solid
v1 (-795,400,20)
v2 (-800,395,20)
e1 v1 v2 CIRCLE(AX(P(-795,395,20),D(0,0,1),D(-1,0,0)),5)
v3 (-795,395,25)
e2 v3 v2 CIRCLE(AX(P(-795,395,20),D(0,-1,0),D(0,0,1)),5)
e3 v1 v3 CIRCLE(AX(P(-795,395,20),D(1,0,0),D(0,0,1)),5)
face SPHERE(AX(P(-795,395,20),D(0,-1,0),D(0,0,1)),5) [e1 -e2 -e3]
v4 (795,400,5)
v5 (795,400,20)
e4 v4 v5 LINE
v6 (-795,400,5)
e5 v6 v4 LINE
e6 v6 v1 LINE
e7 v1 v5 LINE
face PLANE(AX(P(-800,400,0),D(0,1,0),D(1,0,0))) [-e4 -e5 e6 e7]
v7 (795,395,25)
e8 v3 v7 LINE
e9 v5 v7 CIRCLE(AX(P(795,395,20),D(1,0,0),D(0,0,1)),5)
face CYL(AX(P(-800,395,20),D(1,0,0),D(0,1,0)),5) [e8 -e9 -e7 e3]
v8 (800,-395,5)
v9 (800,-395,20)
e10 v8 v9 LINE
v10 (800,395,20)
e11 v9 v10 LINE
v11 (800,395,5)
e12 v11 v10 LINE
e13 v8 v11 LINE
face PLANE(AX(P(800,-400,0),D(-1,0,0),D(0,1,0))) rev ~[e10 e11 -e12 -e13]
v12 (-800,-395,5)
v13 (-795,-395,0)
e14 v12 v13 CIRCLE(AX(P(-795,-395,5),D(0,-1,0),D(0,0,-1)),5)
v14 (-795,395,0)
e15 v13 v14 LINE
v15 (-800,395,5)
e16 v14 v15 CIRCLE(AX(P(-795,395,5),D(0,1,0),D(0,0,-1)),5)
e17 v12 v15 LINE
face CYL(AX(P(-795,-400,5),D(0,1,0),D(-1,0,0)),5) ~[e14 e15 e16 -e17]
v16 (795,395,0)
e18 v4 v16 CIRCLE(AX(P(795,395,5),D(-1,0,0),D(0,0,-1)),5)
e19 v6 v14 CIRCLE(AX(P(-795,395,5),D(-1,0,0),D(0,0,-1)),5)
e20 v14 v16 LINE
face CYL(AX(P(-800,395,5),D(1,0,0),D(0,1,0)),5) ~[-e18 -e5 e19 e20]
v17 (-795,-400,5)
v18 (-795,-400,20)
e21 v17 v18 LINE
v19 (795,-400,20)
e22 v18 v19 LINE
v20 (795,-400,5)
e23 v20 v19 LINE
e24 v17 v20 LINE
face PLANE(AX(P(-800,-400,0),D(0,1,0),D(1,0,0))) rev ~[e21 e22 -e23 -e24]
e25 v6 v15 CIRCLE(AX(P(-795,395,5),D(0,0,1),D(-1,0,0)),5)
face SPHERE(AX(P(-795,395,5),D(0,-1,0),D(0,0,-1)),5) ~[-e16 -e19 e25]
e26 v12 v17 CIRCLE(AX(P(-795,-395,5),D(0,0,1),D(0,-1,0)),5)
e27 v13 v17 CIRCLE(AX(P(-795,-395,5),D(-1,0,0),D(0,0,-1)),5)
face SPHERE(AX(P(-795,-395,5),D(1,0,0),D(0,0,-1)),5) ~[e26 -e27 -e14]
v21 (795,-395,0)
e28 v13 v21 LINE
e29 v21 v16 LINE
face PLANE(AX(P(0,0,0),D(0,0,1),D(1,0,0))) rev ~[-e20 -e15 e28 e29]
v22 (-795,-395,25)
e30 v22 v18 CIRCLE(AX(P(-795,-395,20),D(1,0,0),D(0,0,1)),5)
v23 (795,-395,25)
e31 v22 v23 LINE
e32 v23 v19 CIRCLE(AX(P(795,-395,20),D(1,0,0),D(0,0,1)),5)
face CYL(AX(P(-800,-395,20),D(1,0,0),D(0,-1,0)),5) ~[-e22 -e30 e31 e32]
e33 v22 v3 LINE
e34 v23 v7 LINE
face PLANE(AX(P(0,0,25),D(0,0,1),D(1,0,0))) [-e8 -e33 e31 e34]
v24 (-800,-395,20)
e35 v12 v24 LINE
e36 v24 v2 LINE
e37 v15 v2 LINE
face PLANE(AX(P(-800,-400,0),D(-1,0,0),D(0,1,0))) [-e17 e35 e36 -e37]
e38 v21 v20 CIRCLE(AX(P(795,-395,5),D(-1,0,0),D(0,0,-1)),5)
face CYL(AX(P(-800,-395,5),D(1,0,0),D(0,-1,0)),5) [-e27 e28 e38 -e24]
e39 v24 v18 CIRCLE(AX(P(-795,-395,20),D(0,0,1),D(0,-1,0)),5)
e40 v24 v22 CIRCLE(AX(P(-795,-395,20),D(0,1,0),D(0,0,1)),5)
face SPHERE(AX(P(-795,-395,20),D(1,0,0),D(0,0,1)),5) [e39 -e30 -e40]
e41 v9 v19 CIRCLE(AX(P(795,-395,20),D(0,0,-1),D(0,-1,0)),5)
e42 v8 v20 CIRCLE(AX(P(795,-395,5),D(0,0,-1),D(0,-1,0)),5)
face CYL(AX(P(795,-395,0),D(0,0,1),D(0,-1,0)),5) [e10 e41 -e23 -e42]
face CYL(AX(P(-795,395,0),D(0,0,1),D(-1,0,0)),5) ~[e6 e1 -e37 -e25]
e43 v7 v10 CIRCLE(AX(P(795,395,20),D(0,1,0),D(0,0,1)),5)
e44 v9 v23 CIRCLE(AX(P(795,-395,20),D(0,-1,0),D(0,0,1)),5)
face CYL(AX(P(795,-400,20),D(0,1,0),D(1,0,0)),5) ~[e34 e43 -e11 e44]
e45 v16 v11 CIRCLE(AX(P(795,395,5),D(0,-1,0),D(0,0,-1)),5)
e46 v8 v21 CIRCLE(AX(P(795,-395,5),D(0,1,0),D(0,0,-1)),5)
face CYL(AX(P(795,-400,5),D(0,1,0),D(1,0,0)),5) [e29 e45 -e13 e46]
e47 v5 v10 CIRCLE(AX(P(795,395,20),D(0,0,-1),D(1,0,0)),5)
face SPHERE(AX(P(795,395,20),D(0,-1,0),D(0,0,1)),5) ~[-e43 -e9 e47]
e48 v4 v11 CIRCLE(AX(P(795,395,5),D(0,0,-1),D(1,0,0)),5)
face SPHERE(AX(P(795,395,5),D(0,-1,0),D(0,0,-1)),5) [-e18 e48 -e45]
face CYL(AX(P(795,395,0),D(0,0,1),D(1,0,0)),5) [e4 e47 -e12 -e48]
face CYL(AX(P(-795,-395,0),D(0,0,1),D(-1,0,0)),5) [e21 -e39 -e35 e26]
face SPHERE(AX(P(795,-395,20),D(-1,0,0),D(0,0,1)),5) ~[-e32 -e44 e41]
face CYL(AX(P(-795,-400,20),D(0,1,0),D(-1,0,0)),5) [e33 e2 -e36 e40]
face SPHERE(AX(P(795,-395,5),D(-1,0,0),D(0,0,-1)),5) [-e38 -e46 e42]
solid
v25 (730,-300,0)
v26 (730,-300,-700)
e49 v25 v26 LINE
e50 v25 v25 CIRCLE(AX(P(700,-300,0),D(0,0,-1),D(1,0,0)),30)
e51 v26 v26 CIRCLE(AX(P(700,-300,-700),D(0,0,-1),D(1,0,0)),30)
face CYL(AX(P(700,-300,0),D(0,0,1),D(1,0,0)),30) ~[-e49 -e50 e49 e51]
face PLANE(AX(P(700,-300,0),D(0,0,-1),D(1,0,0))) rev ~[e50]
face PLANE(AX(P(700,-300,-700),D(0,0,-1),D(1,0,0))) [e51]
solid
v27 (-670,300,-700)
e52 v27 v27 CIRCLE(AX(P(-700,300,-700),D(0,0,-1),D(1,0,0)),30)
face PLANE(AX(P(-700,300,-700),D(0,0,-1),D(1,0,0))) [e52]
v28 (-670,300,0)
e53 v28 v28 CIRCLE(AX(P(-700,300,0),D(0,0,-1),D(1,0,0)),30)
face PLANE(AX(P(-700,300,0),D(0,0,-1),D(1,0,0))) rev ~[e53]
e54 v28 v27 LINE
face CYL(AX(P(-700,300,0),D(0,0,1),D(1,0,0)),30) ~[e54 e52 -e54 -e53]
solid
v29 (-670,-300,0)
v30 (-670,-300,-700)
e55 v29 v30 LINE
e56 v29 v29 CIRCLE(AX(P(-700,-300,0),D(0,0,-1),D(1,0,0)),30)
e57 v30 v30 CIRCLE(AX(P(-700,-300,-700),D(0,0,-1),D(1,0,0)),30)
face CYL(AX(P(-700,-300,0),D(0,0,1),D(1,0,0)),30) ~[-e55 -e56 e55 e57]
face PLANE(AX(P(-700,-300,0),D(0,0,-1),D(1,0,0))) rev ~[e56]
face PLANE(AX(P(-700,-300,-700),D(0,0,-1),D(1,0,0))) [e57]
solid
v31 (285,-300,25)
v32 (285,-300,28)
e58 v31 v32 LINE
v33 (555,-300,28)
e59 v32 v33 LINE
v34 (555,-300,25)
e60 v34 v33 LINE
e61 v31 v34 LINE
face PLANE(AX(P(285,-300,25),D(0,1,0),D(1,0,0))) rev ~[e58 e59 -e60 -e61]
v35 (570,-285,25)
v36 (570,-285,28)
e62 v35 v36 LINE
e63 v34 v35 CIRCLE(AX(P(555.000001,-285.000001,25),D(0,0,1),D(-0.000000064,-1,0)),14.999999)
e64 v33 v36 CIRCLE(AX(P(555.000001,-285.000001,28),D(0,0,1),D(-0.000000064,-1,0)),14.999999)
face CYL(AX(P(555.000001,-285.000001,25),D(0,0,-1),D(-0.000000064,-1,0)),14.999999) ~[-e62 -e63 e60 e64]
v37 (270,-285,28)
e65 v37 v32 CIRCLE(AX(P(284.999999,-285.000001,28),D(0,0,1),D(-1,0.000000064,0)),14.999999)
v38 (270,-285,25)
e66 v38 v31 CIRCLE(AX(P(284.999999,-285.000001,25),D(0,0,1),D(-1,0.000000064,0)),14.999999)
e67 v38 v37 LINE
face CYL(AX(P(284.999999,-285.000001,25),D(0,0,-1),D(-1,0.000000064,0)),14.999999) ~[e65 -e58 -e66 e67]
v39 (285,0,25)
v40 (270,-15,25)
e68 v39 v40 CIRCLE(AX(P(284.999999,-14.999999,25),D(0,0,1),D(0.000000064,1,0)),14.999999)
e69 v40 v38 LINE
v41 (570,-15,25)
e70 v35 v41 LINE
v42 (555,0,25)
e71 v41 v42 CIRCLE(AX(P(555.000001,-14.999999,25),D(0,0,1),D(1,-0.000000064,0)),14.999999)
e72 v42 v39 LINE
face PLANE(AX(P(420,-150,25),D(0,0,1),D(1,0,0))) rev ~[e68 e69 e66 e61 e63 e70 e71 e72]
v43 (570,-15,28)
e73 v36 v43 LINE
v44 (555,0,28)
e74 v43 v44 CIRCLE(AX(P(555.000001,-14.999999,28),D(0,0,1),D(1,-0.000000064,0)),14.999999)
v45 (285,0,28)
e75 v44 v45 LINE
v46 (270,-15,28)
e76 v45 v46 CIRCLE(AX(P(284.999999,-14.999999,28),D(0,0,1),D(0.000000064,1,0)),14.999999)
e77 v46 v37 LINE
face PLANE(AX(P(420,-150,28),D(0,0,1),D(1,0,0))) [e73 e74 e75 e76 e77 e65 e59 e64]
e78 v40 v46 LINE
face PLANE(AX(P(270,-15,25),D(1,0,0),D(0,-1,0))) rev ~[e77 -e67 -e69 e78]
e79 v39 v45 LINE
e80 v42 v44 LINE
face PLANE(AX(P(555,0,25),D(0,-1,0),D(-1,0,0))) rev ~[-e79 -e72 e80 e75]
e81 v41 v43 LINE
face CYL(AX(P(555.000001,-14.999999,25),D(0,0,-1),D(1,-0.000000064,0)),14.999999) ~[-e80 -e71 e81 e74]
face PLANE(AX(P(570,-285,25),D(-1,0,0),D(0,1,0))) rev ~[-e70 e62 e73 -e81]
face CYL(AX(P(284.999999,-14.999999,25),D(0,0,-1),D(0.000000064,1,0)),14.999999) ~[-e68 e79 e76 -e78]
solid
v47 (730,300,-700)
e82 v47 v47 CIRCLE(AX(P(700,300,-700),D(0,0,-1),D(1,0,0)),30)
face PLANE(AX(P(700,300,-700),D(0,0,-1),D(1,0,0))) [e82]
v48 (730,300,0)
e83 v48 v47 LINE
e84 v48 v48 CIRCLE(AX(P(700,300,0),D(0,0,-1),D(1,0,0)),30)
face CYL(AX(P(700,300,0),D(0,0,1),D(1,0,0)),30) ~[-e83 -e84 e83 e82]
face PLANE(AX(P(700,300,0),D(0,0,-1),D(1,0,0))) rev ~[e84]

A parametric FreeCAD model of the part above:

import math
import FreeCAD as App
import Part
import Sketcher
from FreeCAD import Vector


def add_polygon(sketch, points):
    """Adds a closed chain of lines whose ends are joined by coincident constraints."""
    first, n = sketch.GeometryCount, len(points)
    for a, b in zip(points, points[1:] + points[:1]):
        sketch.addGeometry(Part.LineSegment(App.Vector(*a, 0), App.Vector(*b, 0)), False)
    for i in range(n):
        sketch.addConstraint(Sketcher.Constraint("Coincident", first + i, 2, first + (i + 1) % n, 1))

doc = App.newDocument("Part")
body = doc.addObject("PartDesign::Body", "Body")

sketch1 = body.newObject("Sketcher::SketchObject", "Sketch")
sketch1.AttachmentSupport = (doc.getObject("XY_Plane"), [""])
sketch1.MapMode = "FlatFace"
add_polygon(sketch1, [(-800, 400), (-800, -400), (800, -400), (800, 400)])
sketch1.addConstraint([
    Sketcher.Constraint("Vertical", 0),
    Sketcher.Constraint("Horizontal", 1),
    Sketcher.Constraint("Vertical", 2),
    Sketcher.Constraint("Horizontal", 3),
    Sketcher.Constraint("Symmetric", 0, 2, 2, 2, -1, 1),
    Sketcher.Constraint("DistanceX", 1, 1, 1, 2, 1600.0),
    Sketcher.Constraint("DistanceY", 0, 2, 0, 1, 800.0),
])
pad1 = body.newObject("PartDesign::Pad", "Pad")
pad1.Profile = sketch1
pad1.Length = 25
doc.recompute()

fillet = body.newObject("PartDesign::Fillet", "Fillet")
fillet.Base = (pad1, ["Edge1"])
fillet.UseAllEdges = True
fillet.Radius = 5
body2 = doc.addObject("PartDesign::Body", "Body001")
body2.AllowCompound = True

sketch2 = body2.newObject("Sketcher::SketchObject", "Sketch001")
sketch2.AttachmentSupport = (doc.getObject("XY_Plane001"), [""])
sketch2.MapMode = "FlatFace"
sketch2.addGeometry([
    Part.Circle(Vector(-700, -300, 0), Vector(0, 0, 1), 30),
    Part.Circle(Vector(700, -300, 0), Vector(0, 0, 1), 30),
    Part.Circle(Vector(700, 300, 0), Vector(0, 0, 1), 30),
    Part.Circle(Vector(-700, 300, 0), Vector(0, 0, 1), 30),
], False)
sketch2.addConstraint([
    Sketcher.Constraint("Equal", 0, 1),
    Sketcher.Constraint("Equal", 1, 2),
    Sketcher.Constraint("Equal", 2, 3),
    Sketcher.Constraint("Symmetric", 0, 3, 2, 3, -1, 1),
    Sketcher.Constraint("Symmetric", 1, 3, 3, 3, -1, 1),
    Sketcher.Constraint("Symmetric", 0, 3, 1, 3, -2),
    Sketcher.Constraint("Diameter", 0, 60.0),
    Sketcher.Constraint("DistanceX", 0, 3, -1, 1, 700.0),
    Sketcher.Constraint("DistanceY", 0, 3, -1, 1, 300.0),
])
pad2 = body2.newObject("PartDesign::Pad", "Pad001")
pad2.Profile = sketch2
pad2.Length = 700
pad2.Reversed = True
body3 = doc.addObject("PartDesign::Body", "Body002")

sketch3 = body3.newObject("Sketcher::SketchObject", "Sketch002")
sketch3.AttachmentSupport = (doc.getObject("XY_Plane002"), [""])
sketch3.MapMode = "FlatFace"
sketch3.AttachmentOffset = App.Placement(Vector(0, 0, 25), App.Rotation())
sketch3.addGeometry([
    Part.LineSegment(Vector(285, -300, 0), Vector(555, -300, 0)),
    Part.ArcOfCircle(Part.Circle(Vector(555, -285, 0), Vector(0, 0, 1), 15), math.radians(-90), math.radians(0)),
    Part.LineSegment(Vector(570, -285, 0), Vector(570, -15, 0)),
    Part.ArcOfCircle(Part.Circle(Vector(555, -15, 0), Vector(0, 0, 1), 15), math.radians(0), math.radians(90)),
    Part.LineSegment(Vector(555, 0, 0), Vector(285, 0, 0)),
    Part.ArcOfCircle(Part.Circle(Vector(285, -15, 0), Vector(0, 0, 1), 15), math.radians(90), math.radians(180)),
    Part.LineSegment(Vector(270, -15, 0), Vector(270, -285, 0)),
    Part.ArcOfCircle(Part.Circle(Vector(285, -285, 0), Vector(0, 0, 1), 15), math.radians(180), math.radians(270)),
], False)
sketch3.addConstraint([
    Sketcher.Constraint("Tangent", 0, 2, 1, 1),
    Sketcher.Constraint("Tangent", 1, 2, 2, 1),
    Sketcher.Constraint("Tangent", 2, 2, 3, 1),
    Sketcher.Constraint("Tangent", 3, 2, 4, 1),
    Sketcher.Constraint("Tangent", 4, 2, 5, 1),
    Sketcher.Constraint("Tangent", 5, 2, 6, 1),
    Sketcher.Constraint("Tangent", 6, 2, 7, 1),
    Sketcher.Constraint("Tangent", 7, 2, 0, 1),
    Sketcher.Constraint("Horizontal", 0),
    Sketcher.Constraint("Vertical", 2),
    Sketcher.Constraint("Horizontal", 4),
    Sketcher.Constraint("Vertical", 6),
    Sketcher.Constraint("Equal", 1, 3),
    Sketcher.Constraint("Equal", 3, 5),
    Sketcher.Constraint("Equal", 5, 7),
    Sketcher.Constraint("PointOnObject", 3, 2, -1),
    Sketcher.Constraint("Equal", 4, 2),
    Sketcher.Constraint("Radius", 1, 14.999999),
    Sketcher.Constraint("DistanceX", 0, 1, 0, 2, 270.0),
    Sketcher.Constraint("DistanceX", -1, 1, 1, 3, 555.000001),
])
pad3 = body3.newObject("PartDesign::Pad", "Pad002")
pad3.Profile = sketch3
pad3.Length = 3

doc.recompute()
